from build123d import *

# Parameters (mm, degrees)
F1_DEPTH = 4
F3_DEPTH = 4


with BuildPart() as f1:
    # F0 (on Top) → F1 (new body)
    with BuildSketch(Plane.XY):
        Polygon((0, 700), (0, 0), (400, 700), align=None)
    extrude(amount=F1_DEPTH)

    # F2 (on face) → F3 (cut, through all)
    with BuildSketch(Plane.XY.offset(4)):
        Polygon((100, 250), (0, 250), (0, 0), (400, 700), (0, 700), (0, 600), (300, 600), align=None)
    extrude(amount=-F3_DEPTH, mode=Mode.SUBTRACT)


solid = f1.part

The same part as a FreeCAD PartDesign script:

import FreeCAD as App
import Part
import Sketcher


def add_polygon(sketch, points):
    """Adds a closed chain of lines whose ends are joined by coincident constraints."""
    first, n = sketch.GeometryCount, len(points)
    for a, b in zip(points, points[1:] + points[:1]):
        sketch.addGeometry(Part.LineSegment(App.Vector(*a, 0), App.Vector(*b, 0)), False)
    for i in range(n):
        sketch.addConstraint(Sketcher.Constraint("Coincident", first + i, 2, first + (i + 1) % n, 1))

doc = App.newDocument("Part")
params = doc.addObject("Spreadsheet::Sheet", "Params")
for row, (alias, value) in enumerate([
    ("sketch1_width", "400 mm"),
    ("sketch1_height", "700 mm"),
    ("pad1_length", "4 mm"),
    ("sketch2_width", "100 mm"),
    ("sketch2_width2", "400 mm"),
    ("sketch2_width3", "300 mm"),
    ("sketch2_height", "250 mm"),
], start=1):
    params.set(f"A{row}", alias)
    params.set(f"B{row}", "=" + value)
    params.setAlias(f"B{row}", alias)

body = doc.addObject("PartDesign::Body", "Body")

# Sketch on XY plane
sketch1 = body.newObject("Sketcher::SketchObject", "Sketch")
sketch1.AttachmentSupport = (doc.getObject("XY_Plane"), [""])
sketch1.MapMode = "FlatFace"
add_polygon(sketch1, [(0, 700), (0, 0), (400, 700)])  # lines 0-2
sketch1.addConstraint(Sketcher.Constraint("Vertical", 0))
sketch1.addConstraint(Sketcher.Constraint("Horizontal", 2))
sketch1.addConstraint(Sketcher.Constraint("Coincident", 0, 2, -1, 1))
sketch1.addConstraint(Sketcher.Constraint("DistanceX", 2, 2, 2, 1, 400.0))
sketch1.addConstraint(Sketcher.Constraint("DistanceY", 0, 2, 0, 1, 700.0))
sketch1.setExpression("Constraints[6]", "Params.sketch1_width")
sketch1.setExpression("Constraints[7]", "Params.sketch1_height")
pad1 = body.newObject("PartDesign::Pad", "Pad")
pad1.Profile = sketch1
pad1.setExpression("Length", "Params.pad1_length")

# Sketch on XY plane
sketch2 = body.newObject("Sketcher::SketchObject", "Sketch001")
sketch2.AttachmentSupport = (doc.getObject("XY_Plane"), [""])
sketch2.MapMode = "FlatFace"
sketch2.AttachmentOffset = App.Placement(App.Vector(0, 0, 4), App.Rotation())
add_polygon(sketch2, [(100, 250), (0, 250), (0, 0), (400, 700), (0, 700), (0, 600), (300, 600)])  # lines 0-6
sketch2.addConstraint(Sketcher.Constraint("Horizontal", 0))
sketch2.addConstraint(Sketcher.Constraint("Vertical", 1))
sketch2.addConstraint(Sketcher.Constraint("Horizontal", 3))
sketch2.addConstraint(Sketcher.Constraint("Vertical", 4))
sketch2.addConstraint(Sketcher.Constraint("Horizontal", 5))
sketch2.addConstraint(Sketcher.Constraint("Coincident", 1, 2, -1, 1))
sketch2.addConstraint(Sketcher.Constraint("PointOnObject", 3, 2, -2))
sketch2.addConstraint(Sketcher.Constraint("Parallel", 2, 6))
sketch2.addConstraint(Sketcher.Constraint("Equal", 0, 4))
sketch2.addConstraint(Sketcher.Constraint("DistanceX", 0, 2, 0, 1, 100.0))
sketch2.addConstraint(Sketcher.Constraint("DistanceX", 3, 2, 3, 1, 400.0))
sketch2.addConstraint(Sketcher.Constraint("DistanceX", 5, 1, 5, 2, 300.0))
sketch2.addConstraint(Sketcher.Constraint("DistanceY", 1, 2, 1, 1, 250.0))
sketch2.setExpression("Constraints[16]", "Params.sketch2_width")
sketch2.setExpression("Constraints[17]", "Params.sketch2_width2")
sketch2.setExpression("Constraints[18]", "Params.sketch2_width3")
sketch2.setExpression("Constraints[19]", "Params.sketch2_height")
pocket1 = body.newObject("PartDesign::Pocket", "Pocket")
pocket1.Profile = sketch2
pocket1.Type = "ThroughAll"

doc.recompute()
